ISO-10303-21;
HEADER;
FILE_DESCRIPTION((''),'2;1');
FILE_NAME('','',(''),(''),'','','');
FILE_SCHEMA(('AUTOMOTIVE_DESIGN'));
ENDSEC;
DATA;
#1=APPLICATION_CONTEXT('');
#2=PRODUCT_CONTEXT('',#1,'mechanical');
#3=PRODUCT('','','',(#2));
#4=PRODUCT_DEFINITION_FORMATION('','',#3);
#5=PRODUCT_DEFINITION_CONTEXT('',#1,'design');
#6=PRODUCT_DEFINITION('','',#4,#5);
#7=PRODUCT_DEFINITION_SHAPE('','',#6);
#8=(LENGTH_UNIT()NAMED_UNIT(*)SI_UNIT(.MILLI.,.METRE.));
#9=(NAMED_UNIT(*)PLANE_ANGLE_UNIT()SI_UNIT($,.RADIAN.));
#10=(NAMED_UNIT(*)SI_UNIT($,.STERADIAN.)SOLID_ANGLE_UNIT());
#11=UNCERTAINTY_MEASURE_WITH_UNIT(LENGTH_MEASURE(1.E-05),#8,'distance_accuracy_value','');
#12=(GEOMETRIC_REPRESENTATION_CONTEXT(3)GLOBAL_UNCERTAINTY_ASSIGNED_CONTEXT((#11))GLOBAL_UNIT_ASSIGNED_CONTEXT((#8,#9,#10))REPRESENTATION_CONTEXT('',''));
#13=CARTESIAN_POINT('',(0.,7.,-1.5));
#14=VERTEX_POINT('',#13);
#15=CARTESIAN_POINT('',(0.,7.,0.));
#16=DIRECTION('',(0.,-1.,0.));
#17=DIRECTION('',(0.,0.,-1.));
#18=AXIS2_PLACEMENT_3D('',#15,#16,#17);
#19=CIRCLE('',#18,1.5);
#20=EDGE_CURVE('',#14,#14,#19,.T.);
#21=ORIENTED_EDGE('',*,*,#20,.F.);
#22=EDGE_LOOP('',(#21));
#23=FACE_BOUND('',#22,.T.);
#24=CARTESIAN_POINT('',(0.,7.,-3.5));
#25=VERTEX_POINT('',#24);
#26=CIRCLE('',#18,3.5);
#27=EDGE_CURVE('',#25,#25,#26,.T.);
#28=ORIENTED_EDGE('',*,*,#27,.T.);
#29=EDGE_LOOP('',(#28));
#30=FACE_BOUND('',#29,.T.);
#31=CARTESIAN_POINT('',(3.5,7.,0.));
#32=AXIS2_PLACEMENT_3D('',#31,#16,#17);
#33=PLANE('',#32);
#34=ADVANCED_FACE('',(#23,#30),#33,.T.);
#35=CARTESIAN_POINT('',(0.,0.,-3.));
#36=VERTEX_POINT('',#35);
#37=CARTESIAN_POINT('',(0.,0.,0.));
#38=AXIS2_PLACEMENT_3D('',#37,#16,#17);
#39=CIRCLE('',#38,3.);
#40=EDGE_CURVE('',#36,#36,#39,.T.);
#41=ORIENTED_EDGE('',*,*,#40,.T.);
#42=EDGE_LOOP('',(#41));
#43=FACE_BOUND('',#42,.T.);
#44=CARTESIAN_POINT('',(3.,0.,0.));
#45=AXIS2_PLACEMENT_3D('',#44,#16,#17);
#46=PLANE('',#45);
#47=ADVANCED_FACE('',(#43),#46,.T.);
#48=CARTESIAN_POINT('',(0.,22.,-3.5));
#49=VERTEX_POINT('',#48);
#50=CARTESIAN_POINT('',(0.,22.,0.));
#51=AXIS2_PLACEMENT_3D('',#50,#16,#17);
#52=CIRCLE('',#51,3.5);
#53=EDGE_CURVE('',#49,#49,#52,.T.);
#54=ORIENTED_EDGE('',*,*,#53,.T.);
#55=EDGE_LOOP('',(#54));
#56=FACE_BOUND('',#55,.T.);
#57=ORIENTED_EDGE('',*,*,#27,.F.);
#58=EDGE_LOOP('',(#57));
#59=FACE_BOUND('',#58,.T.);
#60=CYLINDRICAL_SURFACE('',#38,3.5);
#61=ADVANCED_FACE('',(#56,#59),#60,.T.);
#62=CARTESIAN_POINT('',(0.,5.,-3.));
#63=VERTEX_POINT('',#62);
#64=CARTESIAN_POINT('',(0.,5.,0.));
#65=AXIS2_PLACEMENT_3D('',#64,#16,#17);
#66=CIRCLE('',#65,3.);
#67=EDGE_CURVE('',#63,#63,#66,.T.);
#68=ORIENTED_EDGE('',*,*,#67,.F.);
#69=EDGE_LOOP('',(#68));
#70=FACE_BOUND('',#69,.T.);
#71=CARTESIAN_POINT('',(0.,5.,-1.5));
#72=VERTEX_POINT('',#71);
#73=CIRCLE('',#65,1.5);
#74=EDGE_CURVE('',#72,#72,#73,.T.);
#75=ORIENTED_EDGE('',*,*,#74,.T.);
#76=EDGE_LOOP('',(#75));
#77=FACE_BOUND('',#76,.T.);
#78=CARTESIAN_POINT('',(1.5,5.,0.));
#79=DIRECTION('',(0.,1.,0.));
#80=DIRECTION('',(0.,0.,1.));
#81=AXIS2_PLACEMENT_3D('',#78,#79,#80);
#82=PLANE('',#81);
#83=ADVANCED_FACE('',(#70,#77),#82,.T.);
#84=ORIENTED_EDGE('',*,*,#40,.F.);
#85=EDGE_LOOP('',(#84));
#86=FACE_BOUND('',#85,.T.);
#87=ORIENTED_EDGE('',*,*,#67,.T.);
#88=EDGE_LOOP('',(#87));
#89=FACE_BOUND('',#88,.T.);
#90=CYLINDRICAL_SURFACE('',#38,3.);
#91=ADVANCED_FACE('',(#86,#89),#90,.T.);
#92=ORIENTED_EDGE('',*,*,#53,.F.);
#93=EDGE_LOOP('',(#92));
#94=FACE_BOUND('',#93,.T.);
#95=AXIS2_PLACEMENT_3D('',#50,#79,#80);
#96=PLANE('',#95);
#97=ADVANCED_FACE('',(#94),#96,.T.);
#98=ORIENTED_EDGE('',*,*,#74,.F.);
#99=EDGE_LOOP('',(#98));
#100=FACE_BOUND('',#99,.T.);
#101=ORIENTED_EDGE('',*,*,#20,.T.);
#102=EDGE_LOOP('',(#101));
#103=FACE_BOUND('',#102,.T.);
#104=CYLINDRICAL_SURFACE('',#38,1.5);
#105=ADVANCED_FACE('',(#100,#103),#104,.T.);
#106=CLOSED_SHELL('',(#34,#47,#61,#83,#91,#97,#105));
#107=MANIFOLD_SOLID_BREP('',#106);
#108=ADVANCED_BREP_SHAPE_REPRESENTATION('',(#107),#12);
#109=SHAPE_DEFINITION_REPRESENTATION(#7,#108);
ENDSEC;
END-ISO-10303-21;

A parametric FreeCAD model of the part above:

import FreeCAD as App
import Part
import Sketcher

V = App.Vector


def add_polygon(sketch, points):
    """Adds a closed chain of lines whose ends are joined by coincident constraints."""
    first, n = sketch.GeometryCount, len(points)
    for a, b in zip(points, points[1:] + points[:1]):
        sketch.addGeometry(Part.LineSegment(App.Vector(*a, 0), App.Vector(*b, 0)), False)
    for i in range(n):
        sketch.addConstraint(Sketcher.Constraint("Coincident", first + i, 2, first + (i + 1) % n, 1))

doc = App.newDocument("Part")
body = doc.addObject("PartDesign::Body", "Body")

# Sketch on XY plane
sketch1 = body.newObject("Sketcher::SketchObject", "Sketch")
sketch1.AttachmentSupport = (doc.getObject("XY_Plane"), [""])
sketch1.MapMode = "FlatFace"
add_polygon(sketch1, [(3.5, 22), (0, 22), (0, 0), (3, 0), (3, 5), (1.5, 5), (1.5, 7), (3.5, 7)])  # lines 0-7
sketch1.addConstraint(Sketcher.Constraint("Horizontal", 0))
sketch1.addConstraint(Sketcher.Constraint("Vertical", 1))
sketch1.addConstraint(Sketcher.Constraint("Horizontal", 2))
sketch1.addConstraint(Sketcher.Constraint("Vertical", 3))
sketch1.addConstraint(Sketcher.Constraint("Horizontal", 4))
sketch1.addConstraint(Sketcher.Constraint("Vertical", 5))
sketch1.addConstraint(Sketcher.Constraint("Horizontal", 6))
sketch1.addConstraint(Sketcher.Constraint("Vertical", 7))
sketch1.addConstraint(Sketcher.Constraint("Coincident", 1, 2, -1, 1))
sketch1.addConstraint(Sketcher.Constraint("Equal", 6, 5))
sketch1.addConstraint(Sketcher.Constraint("DistanceX", 2, 1, 2, 2, 3.0))
sketch1.addConstraint(Sketcher.Constraint("DistanceX", 6, 1, 6, 2, 2.0))
sketch1.addConstraint(Sketcher.Constraint("DistanceY", 1, 2, 1, 1, 22.0))
sketch1.addConstraint(Sketcher.Constraint("DistanceY", 3, 1, 3, 2, 5.0))
sketch1.addConstraint(Sketcher.Constraint("DistanceX", 0, 2, 0, 1, 3.5))
revolution = body.newObject("PartDesign::Revolution", "Revolution")
revolution.Profile = sketch1
revolution.ReferenceAxis = (sketch1, ["V_Axis"])
revolution.Angle = 360

doc.recompute()
